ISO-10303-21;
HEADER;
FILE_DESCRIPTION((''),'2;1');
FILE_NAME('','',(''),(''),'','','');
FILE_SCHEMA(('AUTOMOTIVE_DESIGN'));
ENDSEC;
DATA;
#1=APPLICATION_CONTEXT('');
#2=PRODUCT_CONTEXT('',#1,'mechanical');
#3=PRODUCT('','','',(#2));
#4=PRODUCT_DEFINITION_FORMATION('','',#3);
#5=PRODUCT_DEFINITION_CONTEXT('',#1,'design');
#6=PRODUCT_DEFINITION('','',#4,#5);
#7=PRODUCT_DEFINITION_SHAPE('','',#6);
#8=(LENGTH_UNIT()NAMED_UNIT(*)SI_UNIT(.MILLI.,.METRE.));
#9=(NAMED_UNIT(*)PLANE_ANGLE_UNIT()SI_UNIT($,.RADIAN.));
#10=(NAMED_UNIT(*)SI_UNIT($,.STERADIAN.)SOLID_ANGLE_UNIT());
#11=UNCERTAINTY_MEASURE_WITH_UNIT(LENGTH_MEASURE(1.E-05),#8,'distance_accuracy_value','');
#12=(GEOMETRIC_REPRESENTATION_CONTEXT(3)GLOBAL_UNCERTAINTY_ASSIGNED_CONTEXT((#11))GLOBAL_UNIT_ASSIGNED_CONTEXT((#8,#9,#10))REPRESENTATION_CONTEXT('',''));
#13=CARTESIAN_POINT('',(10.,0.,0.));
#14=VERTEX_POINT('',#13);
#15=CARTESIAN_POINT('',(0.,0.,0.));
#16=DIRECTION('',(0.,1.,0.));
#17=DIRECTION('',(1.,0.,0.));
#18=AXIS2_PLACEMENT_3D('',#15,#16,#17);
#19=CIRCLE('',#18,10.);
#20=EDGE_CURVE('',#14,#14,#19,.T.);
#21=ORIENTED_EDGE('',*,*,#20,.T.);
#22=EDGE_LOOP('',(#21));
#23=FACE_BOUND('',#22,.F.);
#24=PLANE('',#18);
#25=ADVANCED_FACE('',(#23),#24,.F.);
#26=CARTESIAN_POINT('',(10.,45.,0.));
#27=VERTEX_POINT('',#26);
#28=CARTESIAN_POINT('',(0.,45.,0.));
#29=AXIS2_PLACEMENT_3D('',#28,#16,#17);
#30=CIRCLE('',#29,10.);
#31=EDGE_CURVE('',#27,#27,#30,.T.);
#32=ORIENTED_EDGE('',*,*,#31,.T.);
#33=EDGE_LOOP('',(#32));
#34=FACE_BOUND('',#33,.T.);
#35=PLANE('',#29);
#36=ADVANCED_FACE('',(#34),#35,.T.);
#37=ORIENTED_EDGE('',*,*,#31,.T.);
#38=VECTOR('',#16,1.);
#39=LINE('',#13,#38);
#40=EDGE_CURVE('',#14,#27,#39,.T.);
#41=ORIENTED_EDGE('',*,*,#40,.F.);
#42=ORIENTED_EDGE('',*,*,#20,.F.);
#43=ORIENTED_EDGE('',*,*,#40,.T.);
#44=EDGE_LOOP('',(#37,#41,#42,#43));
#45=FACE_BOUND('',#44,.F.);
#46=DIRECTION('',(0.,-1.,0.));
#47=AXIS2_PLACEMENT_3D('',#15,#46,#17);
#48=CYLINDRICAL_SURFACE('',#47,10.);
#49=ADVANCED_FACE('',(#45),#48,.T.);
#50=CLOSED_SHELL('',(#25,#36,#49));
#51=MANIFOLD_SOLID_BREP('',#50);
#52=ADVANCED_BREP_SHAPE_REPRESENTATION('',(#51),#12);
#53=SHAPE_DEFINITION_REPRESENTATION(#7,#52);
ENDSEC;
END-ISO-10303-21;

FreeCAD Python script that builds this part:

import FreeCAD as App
import Part
import Sketcher
from FreeCAD import Vector

doc = App.newDocument("Part")
body = doc.addObject("PartDesign::Body", "Body")

sketch1 = body.newObject("Sketcher::SketchObject", "Sketch")
sketch1.AttachmentSupport = (doc.getObject("XZ_Plane"), [""])
sketch1.MapMode = "FlatFace"
sketch1.addGeometry(Part.Circle(Vector(0, 0, 0), Vector(0, 0, 1), 10), False)
sketch1.addConstraint([
    Sketcher.Constraint("Coincident", 0, 3, -1, 1),
    Sketcher.Constraint("Diameter", 0, 20.0),
])
pad1 = body.newObject("PartDesign::Pad", "Pad")
pad1.Profile = sketch1
pad1.Length = 45
pad1.Reversed = True

doc.recompute()
